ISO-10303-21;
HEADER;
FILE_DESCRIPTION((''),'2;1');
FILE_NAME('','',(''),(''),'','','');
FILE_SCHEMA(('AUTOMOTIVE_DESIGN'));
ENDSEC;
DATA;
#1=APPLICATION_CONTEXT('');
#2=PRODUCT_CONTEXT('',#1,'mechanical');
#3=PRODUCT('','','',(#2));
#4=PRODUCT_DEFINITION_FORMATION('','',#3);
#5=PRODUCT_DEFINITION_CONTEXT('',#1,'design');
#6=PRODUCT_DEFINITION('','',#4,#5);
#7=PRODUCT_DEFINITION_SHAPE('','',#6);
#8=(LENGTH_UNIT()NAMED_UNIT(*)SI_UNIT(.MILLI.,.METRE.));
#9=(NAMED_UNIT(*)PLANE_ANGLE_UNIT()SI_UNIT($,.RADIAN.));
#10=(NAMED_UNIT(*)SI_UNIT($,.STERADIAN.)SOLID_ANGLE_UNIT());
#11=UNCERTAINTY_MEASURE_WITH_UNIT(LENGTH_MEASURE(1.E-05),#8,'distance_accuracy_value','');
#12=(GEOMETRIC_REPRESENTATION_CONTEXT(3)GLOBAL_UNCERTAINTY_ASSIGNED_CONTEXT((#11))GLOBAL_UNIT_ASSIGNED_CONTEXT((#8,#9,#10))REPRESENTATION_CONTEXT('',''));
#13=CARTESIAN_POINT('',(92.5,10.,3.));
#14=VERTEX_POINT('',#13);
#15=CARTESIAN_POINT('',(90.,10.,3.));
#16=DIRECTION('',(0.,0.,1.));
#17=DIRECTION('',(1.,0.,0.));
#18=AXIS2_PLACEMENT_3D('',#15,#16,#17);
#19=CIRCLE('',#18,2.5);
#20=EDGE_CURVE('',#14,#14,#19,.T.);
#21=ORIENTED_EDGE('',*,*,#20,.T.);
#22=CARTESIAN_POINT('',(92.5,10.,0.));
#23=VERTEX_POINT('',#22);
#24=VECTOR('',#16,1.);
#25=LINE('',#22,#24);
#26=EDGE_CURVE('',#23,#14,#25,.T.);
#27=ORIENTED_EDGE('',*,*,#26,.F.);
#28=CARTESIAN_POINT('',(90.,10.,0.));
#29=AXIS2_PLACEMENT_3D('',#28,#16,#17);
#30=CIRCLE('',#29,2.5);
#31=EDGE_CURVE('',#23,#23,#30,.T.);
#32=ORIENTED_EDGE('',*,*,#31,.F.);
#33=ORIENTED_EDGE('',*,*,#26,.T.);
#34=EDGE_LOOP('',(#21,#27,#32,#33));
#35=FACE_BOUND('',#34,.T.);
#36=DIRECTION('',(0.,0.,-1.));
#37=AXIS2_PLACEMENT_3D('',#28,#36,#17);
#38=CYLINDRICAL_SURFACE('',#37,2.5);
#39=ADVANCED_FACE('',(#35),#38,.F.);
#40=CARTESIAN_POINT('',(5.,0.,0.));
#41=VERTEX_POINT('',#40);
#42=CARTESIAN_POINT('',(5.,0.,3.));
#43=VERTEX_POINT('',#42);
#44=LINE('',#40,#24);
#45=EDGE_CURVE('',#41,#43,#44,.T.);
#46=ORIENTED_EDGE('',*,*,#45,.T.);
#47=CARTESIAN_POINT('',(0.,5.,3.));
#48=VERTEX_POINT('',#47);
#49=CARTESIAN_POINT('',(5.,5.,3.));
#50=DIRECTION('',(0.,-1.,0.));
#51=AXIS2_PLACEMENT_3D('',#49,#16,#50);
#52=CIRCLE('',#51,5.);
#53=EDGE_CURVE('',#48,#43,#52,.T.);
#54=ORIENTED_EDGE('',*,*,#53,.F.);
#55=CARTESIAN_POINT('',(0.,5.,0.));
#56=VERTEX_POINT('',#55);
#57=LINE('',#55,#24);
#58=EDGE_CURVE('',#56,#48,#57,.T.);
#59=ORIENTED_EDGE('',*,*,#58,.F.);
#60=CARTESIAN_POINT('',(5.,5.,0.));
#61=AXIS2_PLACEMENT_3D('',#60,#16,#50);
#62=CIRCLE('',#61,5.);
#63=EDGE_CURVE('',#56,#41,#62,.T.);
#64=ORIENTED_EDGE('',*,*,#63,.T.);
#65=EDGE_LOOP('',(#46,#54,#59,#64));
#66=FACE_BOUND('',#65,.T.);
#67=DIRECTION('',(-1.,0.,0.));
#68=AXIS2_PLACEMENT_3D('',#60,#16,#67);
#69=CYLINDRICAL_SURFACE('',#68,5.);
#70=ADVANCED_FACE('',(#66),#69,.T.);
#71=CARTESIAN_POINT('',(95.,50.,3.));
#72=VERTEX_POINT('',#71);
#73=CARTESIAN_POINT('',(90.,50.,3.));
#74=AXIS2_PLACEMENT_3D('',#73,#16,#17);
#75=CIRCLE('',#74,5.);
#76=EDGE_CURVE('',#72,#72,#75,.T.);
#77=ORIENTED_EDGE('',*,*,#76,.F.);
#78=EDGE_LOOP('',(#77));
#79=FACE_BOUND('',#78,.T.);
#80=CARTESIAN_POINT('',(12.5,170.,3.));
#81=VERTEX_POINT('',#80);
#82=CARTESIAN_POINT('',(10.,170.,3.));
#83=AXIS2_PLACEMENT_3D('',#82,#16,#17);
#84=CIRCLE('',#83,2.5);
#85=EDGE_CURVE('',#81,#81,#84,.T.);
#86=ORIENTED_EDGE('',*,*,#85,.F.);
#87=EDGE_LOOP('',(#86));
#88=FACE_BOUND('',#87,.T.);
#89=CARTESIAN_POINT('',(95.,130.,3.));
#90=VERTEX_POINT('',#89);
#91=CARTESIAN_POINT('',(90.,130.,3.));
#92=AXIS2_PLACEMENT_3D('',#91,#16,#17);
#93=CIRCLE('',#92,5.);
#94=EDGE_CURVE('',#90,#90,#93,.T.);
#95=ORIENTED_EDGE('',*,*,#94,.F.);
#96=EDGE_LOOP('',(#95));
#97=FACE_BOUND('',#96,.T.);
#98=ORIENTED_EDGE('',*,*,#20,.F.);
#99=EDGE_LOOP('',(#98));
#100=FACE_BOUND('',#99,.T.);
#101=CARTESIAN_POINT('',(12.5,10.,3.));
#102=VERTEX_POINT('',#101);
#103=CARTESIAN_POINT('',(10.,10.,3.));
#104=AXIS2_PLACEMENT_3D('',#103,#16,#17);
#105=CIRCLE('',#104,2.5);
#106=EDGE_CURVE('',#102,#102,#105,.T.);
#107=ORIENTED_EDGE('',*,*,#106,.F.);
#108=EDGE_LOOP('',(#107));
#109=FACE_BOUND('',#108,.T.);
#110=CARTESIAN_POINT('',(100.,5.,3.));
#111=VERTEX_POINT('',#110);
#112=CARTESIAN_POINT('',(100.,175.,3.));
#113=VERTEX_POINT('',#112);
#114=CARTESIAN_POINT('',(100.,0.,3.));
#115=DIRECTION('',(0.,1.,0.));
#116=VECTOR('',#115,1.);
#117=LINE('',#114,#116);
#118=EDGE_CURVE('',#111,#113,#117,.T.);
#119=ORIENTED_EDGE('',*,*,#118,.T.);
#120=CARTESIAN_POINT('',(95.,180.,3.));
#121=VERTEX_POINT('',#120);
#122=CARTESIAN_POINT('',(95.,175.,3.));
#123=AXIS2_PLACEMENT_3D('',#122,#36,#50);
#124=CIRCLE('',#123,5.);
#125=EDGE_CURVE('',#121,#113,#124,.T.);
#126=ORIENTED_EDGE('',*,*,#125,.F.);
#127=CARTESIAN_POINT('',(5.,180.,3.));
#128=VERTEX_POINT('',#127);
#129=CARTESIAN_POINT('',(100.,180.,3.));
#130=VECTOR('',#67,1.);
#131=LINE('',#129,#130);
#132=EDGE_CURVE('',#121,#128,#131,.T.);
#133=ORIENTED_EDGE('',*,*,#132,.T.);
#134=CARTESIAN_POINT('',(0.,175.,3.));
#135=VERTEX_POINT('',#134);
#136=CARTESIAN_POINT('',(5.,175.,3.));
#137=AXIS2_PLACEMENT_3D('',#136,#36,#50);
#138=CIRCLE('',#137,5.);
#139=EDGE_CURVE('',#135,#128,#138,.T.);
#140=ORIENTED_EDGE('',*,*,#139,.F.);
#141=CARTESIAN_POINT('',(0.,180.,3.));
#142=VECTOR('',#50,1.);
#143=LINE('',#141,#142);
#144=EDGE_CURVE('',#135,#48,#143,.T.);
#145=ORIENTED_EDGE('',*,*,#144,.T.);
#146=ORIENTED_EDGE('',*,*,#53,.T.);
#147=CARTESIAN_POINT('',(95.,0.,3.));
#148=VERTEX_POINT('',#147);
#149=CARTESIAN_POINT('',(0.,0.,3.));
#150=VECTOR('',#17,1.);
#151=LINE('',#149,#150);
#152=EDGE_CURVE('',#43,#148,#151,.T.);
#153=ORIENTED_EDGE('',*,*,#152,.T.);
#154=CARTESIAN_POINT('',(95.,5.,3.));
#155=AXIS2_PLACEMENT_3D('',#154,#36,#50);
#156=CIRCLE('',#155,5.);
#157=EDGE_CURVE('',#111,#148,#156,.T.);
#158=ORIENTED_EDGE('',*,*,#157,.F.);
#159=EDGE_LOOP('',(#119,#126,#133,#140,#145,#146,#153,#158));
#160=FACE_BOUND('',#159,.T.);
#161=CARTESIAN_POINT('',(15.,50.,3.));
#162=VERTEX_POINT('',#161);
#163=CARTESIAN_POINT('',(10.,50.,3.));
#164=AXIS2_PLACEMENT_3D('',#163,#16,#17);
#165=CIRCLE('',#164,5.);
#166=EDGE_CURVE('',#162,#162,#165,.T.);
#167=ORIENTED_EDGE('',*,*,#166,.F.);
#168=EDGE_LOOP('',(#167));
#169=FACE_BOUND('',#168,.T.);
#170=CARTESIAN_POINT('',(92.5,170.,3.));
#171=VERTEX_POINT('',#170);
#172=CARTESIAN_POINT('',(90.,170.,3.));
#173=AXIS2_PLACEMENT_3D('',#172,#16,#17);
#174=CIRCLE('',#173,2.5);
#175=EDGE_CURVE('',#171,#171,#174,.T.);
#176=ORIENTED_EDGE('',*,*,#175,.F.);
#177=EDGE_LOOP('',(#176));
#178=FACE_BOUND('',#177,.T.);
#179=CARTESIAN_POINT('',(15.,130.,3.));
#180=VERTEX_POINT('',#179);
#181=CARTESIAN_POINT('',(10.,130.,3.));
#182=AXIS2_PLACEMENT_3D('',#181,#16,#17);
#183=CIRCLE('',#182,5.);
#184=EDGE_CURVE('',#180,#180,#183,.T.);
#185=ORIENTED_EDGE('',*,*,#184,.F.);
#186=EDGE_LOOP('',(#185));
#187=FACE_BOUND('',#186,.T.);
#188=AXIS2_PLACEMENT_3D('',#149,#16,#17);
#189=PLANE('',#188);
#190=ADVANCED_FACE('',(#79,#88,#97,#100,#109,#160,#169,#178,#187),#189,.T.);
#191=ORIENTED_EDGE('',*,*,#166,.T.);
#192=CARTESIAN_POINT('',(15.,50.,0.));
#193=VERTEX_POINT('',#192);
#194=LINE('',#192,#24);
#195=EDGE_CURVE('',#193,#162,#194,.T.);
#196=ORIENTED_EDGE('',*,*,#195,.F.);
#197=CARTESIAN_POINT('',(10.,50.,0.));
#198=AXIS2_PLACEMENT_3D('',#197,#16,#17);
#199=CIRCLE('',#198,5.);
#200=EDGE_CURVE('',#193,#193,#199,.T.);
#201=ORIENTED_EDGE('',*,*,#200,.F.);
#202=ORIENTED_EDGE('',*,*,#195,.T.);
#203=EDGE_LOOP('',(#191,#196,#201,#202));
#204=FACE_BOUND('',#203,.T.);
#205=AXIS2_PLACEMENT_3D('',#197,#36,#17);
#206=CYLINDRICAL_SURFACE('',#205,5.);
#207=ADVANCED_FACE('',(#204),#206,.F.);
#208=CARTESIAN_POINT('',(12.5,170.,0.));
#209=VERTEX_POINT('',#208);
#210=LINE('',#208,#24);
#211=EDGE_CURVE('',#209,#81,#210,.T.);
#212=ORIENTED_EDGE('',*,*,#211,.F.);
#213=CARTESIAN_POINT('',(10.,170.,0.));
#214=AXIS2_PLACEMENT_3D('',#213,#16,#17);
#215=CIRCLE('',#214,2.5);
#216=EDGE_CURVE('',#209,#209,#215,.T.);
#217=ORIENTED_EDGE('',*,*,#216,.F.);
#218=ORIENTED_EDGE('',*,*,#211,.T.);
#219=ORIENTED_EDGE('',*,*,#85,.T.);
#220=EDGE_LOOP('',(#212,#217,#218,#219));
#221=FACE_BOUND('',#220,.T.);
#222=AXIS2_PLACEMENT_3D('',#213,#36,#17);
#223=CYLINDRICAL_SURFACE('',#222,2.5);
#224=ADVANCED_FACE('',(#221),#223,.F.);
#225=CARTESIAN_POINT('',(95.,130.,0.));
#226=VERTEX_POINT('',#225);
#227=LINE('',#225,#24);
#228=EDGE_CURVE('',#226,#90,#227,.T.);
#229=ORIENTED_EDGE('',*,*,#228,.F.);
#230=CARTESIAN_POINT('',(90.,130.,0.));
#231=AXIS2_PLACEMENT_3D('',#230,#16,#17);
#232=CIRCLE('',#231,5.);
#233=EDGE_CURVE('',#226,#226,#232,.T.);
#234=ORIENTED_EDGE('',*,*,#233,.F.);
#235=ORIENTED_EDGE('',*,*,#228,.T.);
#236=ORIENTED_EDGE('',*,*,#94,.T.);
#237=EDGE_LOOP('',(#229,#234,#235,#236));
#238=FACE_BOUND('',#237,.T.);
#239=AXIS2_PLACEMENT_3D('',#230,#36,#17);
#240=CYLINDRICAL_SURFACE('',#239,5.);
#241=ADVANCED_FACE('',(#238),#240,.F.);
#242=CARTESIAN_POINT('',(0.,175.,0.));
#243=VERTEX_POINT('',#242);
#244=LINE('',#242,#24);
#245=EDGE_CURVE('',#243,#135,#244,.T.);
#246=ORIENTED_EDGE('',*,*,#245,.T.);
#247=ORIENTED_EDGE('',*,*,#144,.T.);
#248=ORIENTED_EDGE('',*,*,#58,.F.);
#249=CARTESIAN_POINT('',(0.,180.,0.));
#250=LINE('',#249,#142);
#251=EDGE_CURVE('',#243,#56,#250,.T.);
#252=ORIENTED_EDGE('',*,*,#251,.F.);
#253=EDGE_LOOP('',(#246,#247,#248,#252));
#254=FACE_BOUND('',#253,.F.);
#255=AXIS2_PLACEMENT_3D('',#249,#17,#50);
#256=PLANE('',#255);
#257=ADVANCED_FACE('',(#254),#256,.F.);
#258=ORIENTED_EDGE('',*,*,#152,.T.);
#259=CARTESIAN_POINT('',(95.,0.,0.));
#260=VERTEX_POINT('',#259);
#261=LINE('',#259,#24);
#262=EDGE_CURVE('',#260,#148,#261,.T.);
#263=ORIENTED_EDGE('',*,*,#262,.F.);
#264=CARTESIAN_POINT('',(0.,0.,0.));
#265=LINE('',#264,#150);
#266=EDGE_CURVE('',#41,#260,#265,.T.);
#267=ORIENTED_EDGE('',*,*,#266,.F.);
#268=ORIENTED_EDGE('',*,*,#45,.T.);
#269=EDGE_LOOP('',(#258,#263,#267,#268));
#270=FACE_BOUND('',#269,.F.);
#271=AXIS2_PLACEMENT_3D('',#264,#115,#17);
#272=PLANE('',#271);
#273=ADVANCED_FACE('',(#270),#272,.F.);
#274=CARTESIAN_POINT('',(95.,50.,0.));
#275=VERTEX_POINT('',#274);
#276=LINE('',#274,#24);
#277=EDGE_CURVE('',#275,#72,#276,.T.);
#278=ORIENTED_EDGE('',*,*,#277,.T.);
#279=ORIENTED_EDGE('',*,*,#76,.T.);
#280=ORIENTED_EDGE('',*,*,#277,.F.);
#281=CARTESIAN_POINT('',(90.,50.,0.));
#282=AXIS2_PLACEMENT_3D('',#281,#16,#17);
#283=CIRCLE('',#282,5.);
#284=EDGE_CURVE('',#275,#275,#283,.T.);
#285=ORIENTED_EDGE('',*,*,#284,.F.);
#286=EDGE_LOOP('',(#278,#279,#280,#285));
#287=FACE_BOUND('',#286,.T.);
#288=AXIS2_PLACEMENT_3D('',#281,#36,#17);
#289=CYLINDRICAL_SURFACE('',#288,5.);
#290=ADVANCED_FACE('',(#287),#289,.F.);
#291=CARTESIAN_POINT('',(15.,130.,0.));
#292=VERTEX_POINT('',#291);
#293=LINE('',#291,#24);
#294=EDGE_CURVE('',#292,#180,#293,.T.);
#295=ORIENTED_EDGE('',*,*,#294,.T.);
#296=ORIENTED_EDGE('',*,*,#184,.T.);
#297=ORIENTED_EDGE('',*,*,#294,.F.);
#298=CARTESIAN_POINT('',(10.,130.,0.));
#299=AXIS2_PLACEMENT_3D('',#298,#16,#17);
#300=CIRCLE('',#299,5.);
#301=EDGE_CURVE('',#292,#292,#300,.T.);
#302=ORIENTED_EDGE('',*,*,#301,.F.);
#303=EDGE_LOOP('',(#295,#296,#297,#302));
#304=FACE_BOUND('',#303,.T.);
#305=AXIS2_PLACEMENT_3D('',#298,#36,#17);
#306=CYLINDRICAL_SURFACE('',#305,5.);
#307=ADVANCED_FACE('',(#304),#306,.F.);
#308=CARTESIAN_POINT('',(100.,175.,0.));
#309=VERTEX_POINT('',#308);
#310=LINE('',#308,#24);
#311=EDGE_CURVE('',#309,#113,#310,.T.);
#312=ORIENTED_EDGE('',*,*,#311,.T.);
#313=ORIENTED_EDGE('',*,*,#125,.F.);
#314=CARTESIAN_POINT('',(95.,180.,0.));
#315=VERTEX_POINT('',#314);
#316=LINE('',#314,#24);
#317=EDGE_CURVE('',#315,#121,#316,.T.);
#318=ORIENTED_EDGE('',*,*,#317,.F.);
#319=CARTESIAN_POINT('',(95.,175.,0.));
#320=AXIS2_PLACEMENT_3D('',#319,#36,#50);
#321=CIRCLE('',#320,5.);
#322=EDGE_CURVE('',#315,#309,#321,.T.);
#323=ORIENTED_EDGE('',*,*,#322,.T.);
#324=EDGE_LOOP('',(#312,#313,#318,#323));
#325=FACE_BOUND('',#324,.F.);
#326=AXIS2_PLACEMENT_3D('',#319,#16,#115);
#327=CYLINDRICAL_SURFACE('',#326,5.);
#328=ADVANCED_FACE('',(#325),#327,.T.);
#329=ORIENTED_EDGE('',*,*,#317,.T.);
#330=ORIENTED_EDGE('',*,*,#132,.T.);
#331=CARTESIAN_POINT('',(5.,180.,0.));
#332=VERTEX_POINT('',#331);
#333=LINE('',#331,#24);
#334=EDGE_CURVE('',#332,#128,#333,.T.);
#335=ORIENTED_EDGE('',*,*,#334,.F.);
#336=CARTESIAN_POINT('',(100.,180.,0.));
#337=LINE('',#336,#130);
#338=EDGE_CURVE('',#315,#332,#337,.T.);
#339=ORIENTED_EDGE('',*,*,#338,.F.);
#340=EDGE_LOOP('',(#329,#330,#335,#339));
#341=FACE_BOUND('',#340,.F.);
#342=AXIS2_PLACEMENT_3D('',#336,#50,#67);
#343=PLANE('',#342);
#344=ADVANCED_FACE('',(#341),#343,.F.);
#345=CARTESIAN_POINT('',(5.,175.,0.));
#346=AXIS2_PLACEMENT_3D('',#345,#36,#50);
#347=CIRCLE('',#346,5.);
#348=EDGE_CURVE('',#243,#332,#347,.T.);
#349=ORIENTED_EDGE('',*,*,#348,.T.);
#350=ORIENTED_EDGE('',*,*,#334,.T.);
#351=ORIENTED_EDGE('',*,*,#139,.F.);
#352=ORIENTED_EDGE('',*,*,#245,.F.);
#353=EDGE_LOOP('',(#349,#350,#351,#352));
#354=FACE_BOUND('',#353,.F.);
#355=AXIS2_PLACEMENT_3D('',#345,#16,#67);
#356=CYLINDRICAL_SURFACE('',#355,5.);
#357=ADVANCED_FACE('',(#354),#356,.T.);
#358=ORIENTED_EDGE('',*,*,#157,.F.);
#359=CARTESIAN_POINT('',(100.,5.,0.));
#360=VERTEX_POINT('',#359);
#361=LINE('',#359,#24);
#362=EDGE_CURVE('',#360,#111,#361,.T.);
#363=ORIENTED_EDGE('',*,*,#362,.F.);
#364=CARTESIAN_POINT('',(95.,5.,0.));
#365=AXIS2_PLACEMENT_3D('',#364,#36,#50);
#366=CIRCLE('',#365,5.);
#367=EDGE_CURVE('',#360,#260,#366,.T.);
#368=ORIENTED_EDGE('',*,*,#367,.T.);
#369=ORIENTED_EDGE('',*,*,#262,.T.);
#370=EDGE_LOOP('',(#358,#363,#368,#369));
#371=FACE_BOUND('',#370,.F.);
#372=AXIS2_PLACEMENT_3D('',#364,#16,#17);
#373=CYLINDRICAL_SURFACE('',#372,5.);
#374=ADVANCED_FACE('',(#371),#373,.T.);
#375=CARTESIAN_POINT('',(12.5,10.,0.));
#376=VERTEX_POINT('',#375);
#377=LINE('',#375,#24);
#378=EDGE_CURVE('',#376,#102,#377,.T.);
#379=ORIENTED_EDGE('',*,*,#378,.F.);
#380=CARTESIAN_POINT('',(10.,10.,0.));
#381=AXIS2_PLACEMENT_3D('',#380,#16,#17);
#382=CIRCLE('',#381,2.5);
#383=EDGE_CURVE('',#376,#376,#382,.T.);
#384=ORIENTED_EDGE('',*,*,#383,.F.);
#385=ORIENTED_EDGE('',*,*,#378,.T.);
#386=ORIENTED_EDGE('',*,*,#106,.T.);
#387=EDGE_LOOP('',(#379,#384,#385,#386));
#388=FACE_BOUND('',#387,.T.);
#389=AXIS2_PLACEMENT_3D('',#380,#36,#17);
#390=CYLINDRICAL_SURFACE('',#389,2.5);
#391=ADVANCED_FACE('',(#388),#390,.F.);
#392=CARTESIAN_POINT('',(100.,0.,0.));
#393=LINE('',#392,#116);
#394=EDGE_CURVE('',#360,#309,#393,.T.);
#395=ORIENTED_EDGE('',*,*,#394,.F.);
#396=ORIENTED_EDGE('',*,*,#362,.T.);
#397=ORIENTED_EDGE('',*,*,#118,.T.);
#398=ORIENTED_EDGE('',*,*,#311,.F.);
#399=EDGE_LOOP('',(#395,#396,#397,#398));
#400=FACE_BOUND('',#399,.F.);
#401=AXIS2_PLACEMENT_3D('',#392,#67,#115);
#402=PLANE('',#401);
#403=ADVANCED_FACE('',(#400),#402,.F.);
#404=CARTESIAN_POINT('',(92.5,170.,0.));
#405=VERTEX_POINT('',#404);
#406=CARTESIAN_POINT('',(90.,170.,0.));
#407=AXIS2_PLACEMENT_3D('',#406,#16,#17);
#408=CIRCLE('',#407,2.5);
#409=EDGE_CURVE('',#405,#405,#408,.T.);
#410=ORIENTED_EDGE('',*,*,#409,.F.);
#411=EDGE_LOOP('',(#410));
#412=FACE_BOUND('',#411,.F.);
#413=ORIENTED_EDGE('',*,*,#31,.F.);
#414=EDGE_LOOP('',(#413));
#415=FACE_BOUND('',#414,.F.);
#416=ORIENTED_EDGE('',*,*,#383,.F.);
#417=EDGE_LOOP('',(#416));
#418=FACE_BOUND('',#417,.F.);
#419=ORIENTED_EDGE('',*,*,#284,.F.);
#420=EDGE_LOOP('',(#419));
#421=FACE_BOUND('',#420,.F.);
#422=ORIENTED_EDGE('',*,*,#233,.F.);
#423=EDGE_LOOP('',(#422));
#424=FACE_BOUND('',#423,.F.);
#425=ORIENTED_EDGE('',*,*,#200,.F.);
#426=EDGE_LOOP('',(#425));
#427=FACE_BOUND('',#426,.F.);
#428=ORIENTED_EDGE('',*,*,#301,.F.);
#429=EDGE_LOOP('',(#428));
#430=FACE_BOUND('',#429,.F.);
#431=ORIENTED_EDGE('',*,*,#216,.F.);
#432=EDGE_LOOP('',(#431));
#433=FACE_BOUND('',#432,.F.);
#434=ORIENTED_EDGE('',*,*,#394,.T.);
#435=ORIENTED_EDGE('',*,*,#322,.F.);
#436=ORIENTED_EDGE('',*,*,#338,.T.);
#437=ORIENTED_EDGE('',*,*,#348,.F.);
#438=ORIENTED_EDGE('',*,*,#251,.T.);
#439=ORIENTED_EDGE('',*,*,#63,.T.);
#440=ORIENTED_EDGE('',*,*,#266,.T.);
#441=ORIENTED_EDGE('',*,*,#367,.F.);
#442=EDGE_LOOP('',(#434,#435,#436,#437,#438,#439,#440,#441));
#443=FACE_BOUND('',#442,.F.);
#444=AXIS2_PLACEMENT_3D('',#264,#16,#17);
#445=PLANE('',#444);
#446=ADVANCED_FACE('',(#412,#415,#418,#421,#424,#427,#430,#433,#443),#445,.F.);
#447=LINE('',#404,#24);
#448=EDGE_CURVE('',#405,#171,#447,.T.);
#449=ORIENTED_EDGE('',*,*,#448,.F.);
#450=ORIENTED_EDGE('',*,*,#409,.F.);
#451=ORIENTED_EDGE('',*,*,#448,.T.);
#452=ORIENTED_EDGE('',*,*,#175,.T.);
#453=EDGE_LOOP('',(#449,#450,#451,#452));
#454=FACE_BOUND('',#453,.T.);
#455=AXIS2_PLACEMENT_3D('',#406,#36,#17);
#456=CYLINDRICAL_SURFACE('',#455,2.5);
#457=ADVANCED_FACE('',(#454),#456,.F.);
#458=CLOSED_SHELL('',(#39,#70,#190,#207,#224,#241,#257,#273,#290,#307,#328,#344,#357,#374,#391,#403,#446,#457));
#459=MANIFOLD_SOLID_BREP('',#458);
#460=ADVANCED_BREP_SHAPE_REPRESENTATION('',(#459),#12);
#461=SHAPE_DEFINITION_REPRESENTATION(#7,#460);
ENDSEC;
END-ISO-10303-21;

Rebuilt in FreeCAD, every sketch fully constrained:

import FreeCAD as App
import Part
import Sketcher
from FreeCAD import Vector
Q = App.Units.Quantity


def edges_at(feature, points):
    """Names of the edges that pass closest to the given points."""
    edges = feature.Shape.Edges
    near = lambda p: min(range(len(edges)), key=lambda i: edges[i].distToShape(Part.Vertex(*p))[0])
    return sorted({f"Edge{near(p) + 1}" for p in points})

doc = App.newDocument("Part")
body = doc.addObject("PartDesign::Body", "Body")

sketch1 = doc.addObject("Sketcher::SketchObject", "Sketch")
body.addObject(sketch1)
sketch1.AttachmentSupport = (doc.XY_Plane, [""])
sketch1.MapMode = "FlatFace"
sketch1.addGeometry([
    Part.LineSegment(Vector(0, 180, 0), Vector(0, 0, 0)),
    Part.LineSegment(Vector(0, 0, 0), Vector(100, 0, 0)),
    Part.LineSegment(Vector(100, 0, 0), Vector(100, 180, 0)),
    Part.LineSegment(Vector(100, 180, 0), Vector(0, 180, 0)),
    Part.Circle(Vector(10, 10, 0), Vector(0, 0, 1), 2.5),
    Part.Circle(Vector(10, 50, 0), Vector(0, 0, 1), 5),
    Part.Circle(Vector(90, 10, 0), Vector(0, 0, 1), 2.5),
    Part.Circle(Vector(90, 50, 0), Vector(0, 0, 1), 5),
    Part.Circle(Vector(10, 130, 0), Vector(0, 0, 1), 5),
    Part.Circle(Vector(10, 170, 0), Vector(0, 0, 1), 2.5),
    Part.Circle(Vector(90, 130, 0), Vector(0, 0, 1), 5),
    Part.Circle(Vector(90, 170, 0), Vector(0, 0, 1), 2.5),
], False)
sketch1.addConstraint([
    Sketcher.Constraint("Coincident", 0, 2, 1, 1),
    Sketcher.Constraint("Coincident", 1, 2, 2, 1),
    Sketcher.Constraint("Coincident", 2, 2, 3, 1),
    Sketcher.Constraint("Coincident", 3, 2, 0, 1),
    Sketcher.Constraint("Vertical", 0),
    Sketcher.Constraint("Horizontal", 1),
    Sketcher.Constraint("Vertical", 2),
    Sketcher.Constraint("Horizontal", 3),
    Sketcher.Constraint("Coincident", 0, 2, -1, 1),
    Sketcher.Constraint("Equal", 4, 6),
    Sketcher.Constraint("Equal", 5, 7),
    Sketcher.Constraint("Equal", 7, 8),
    Sketcher.Constraint("Equal", 6, 9),
    Sketcher.Constraint("Equal", 8, 10),
    Sketcher.Constraint("Equal", 9, 11),
    Sketcher.Constraint("Horizontal", 4, 3, 6, 3),
    Sketcher.Constraint("Horizontal", 5, 3, 7, 3),
    Sketcher.Constraint("Horizontal", 8, 3, 10, 3),
    Sketcher.Constraint("Horizontal", 9, 3, 11, 3),
    Sketcher.Constraint("Vertical", 4, 3, 5, 3),
    Sketcher.Constraint("Vertical", 6, 3, 7, 3),
    Sketcher.Constraint("Vertical", 5, 3, 8, 3),
    Sketcher.Constraint("Vertical", 8, 3, 9, 3),
    Sketcher.Constraint("Vertical", 7, 3, 10, 3),
    Sketcher.Constraint("Vertical", 10, 3, 11, 3),
    Sketcher.Constraint("Diameter", 4, Q("5 mm")),
    Sketcher.Constraint("Diameter", 5, Q("10 mm")),
    Sketcher.Constraint("DistanceX", 1, 1, 1, 2, Q("100 mm")),
    Sketcher.Constraint("DistanceY", 0, 2, 0, 1, Q("180 mm")),
    Sketcher.Constraint("DistanceX", -1, 1, 4, 3, Q("10 mm")),
    Sketcher.Constraint("DistanceY", -1, 1, 4, 3, Q("10 mm")),
    Sketcher.Constraint("DistanceY", -1, 1, 5, 3, Q("50 mm")),
    Sketcher.Constraint("DistanceX", 4, 3, 6, 3, Q("80 mm")),
    Sketcher.Constraint("DistanceY", 5, 3, 8, 3, Q("80 mm")),
    Sketcher.Constraint("DistanceY", 11, 3, 2, 2, Q("10 mm")),
])
pad1 = doc.addObject("PartDesign::Pad", "Pad")
body.addObject(pad1)
pad1.Profile = sketch1
pad1.Length = 3
doc.recompute()

fillet = doc.addObject("PartDesign::Fillet", "Fillet")
body.addObject(fillet)
fillet.Base = (pad1, edges_at(pad1, [
    (100, 180, 1.5),
    (0, 180, 1.5),
    (100, 0, 1.5),
    (0, 0, 1.5),
]))
fillet.Radius = 5

doc.recompute()
